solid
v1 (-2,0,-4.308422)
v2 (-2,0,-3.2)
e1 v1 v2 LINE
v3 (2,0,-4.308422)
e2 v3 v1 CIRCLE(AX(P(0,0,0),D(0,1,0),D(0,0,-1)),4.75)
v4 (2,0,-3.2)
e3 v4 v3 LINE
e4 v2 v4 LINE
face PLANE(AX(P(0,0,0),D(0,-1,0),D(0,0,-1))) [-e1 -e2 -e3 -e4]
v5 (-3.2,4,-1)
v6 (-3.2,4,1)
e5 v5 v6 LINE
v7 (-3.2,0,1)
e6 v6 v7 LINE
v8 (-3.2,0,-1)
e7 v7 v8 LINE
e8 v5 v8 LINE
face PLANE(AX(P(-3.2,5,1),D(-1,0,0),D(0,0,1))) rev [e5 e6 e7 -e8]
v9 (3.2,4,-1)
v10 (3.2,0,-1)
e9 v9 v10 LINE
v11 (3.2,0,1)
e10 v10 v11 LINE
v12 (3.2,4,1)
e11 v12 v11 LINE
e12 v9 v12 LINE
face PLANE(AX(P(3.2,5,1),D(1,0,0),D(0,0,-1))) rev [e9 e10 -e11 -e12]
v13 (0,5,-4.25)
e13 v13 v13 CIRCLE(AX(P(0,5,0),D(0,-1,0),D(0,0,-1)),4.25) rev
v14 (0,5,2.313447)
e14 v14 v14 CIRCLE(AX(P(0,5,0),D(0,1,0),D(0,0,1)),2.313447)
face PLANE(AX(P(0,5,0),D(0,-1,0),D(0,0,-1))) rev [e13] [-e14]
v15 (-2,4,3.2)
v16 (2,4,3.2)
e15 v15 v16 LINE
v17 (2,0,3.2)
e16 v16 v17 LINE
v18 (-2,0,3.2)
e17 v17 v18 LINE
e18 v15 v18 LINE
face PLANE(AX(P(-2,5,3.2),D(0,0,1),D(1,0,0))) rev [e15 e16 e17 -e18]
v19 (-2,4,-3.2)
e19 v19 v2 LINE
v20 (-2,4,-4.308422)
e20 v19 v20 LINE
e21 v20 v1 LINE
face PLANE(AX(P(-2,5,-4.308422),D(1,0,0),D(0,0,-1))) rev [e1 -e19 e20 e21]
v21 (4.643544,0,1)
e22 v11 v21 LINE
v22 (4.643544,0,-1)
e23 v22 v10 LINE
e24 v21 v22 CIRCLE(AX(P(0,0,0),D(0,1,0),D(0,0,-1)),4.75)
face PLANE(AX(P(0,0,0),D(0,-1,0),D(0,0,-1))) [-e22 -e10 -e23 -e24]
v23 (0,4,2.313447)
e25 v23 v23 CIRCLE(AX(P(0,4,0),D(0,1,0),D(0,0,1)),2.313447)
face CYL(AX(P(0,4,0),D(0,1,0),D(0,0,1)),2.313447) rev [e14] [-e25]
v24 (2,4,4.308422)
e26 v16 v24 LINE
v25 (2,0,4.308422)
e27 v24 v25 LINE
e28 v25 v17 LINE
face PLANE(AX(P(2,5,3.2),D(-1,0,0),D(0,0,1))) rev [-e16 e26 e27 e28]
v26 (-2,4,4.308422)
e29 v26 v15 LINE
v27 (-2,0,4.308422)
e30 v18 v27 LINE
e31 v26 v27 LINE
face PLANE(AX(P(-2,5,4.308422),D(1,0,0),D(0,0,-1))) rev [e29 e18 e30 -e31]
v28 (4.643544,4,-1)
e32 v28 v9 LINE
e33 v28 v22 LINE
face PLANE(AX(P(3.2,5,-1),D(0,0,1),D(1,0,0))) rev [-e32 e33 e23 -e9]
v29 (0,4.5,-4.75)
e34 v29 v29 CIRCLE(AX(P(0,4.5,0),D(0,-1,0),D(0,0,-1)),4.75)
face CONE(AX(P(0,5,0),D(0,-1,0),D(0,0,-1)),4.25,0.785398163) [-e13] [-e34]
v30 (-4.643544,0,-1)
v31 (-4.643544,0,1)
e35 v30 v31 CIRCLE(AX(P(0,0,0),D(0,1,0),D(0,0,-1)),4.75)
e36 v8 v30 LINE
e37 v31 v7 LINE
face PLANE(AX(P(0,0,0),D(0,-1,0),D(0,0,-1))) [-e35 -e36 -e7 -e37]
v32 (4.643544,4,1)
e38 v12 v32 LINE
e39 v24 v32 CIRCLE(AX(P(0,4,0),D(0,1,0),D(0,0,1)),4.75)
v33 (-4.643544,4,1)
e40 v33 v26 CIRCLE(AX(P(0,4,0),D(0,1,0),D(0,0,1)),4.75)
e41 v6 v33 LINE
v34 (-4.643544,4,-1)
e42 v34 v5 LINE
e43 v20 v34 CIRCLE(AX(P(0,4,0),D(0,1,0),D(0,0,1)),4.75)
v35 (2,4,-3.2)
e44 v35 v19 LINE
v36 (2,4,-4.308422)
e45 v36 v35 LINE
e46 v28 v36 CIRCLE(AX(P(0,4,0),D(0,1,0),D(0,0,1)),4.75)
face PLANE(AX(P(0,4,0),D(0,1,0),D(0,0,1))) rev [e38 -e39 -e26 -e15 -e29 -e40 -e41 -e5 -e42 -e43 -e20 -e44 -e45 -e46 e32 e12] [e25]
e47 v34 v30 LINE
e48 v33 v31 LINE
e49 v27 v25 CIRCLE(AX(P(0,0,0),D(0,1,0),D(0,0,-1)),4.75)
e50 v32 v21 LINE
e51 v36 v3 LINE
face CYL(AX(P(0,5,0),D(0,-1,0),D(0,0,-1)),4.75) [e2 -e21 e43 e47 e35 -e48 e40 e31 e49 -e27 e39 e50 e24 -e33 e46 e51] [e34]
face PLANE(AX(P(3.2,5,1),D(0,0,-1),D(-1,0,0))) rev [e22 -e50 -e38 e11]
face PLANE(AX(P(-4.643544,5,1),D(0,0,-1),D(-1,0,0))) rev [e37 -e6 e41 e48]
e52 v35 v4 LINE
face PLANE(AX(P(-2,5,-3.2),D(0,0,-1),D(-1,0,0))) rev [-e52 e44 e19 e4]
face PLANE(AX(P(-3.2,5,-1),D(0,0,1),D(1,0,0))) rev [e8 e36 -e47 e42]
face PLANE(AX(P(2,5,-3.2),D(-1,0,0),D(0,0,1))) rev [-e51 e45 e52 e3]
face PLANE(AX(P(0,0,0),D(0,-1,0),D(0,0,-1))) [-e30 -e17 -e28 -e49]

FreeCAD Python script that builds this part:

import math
import FreeCAD as App
import Part
import Sketcher
from FreeCAD import Vector
Q = App.Units.Quantity


def edges_at(feature, points):
    """Names of the edges that pass closest to the given points."""
    edges = feature.Shape.Edges
    near = lambda p: min(range(len(edges)), key=lambda i: edges[i].distToShape(Part.Vertex(*p))[0])
    return sorted({f"Edge{near(p) + 1}" for p in points})

doc = App.newDocument("Part")
body = doc.addObject("PartDesign::Body", "Body")

# Sketch on XZ plane
sketch1 = body.newObject("Sketcher::SketchObject", "Sketch")
sketch1.AttachmentSupport = (doc.getObject("XZ_Plane"), [""])
sketch1.MapMode = "FlatFace"
sketch1.addGeometry([
    Part.LineSegment(Vector(3.2, -1, 0), Vector(3.2, 1, 0)),
    Part.LineSegment(Vector(3.2, 1, 0), Vector(4.6, 1, 0)),
    Part.ArcOfCircle(Part.Circle(Vector(0, 0, 0), Vector(0, 0, 1), 4.7), math.radians(-12), math.radians(12)),
    Part.LineSegment(Vector(4.6, -1, 0), Vector(3.2, -1, 0)),
], False)
sketch1.addConstraint([
    Sketcher.Constraint("Coincident", 0, 2, 1, 1),
    Sketcher.Constraint("Coincident", 1, 2, 2, 2),
    Sketcher.Constraint("Coincident", 2, 1, 3, 1),
    Sketcher.Constraint("Coincident", 3, 2, 0, 1),
    Sketcher.Constraint("Vertical", 0),
    Sketcher.Constraint("Horizontal", 1),
    Sketcher.Constraint("Horizontal", 3),
    Sketcher.Constraint("Coincident", 2, 3, -1, 1),
    Sketcher.Constraint("Vertical", 1, 2, 2, 1),
    Sketcher.Constraint("DistanceY", 0, 1, 0, 2, Q("2 mm")),
    Sketcher.Constraint("Radius", 2, Q("4.75 mm")),
    Sketcher.Constraint("DistanceX", -1, 1, 0, 2, Q("3.2 mm")),
])
pad1 = body.newObject("PartDesign::Pad", "Pad")
pad1.Profile = sketch1
pad1.Length = 5
pad1.Reversed = True
body2 = doc.addObject("PartDesign::Body", "Body001")

# Sketch on XZ plane
sketch2 = body2.newObject("Sketcher::SketchObject", "Sketch001")
sketch2.AttachmentSupport = (doc.getObject("XZ_Plane001"), [""])
sketch2.MapMode = "FlatFace"
sketch2.addGeometry([
    Part.LineSegment(Vector(-4.6, 1, 0), Vector(-3.2, 1, 0)),
    Part.LineSegment(Vector(-3.2, 1, 0), Vector(-3.2, -1, 0)),
    Part.LineSegment(Vector(-3.2, -1, 0), Vector(-4.6, -1, 0)),
    Part.ArcOfCircle(Part.Circle(Vector(0, 0, 0), Vector(0, 0, 1), 4.7), math.radians(168), math.radians(192)),
], False)
sketch2.addConstraint([
    Sketcher.Constraint("Coincident", 0, 2, 1, 1),
    Sketcher.Constraint("Coincident", 1, 2, 2, 1),
    Sketcher.Constraint("Coincident", 2, 2, 3, 2),
    Sketcher.Constraint("Coincident", 3, 1, 0, 1),
    Sketcher.Constraint("Horizontal", 0),
    Sketcher.Constraint("Vertical", 1),
    Sketcher.Constraint("Horizontal", 2),
    Sketcher.Constraint("Coincident", 3, 3, -1, 1),
    Sketcher.Constraint("Vertical", 2, 2, 3, 1),
    Sketcher.Constraint("DistanceY", 1, 2, 1, 1, Q("2 mm")),
    Sketcher.Constraint("Radius", 3, Q("4.75 mm")),
    Sketcher.Constraint("DistanceX", 0, 2, -1, 1, Q("3.2 mm")),
])
pad2 = body2.newObject("PartDesign::Pad", "Pad001")
pad2.Profile = sketch2
pad2.Length = 5
pad2.Reversed = True
body3 = doc.addObject("PartDesign::Body", "Body002")

# Sketch on XZ plane
sketch3 = body3.newObject("Sketcher::SketchObject", "Sketch002")
sketch3.AttachmentSupport = (doc.getObject("XZ_Plane002"), [""])
sketch3.MapMode = "FlatFace"
sketch3.addGeometry([
    Part.LineSegment(Vector(-2, 3.2, 0), Vector(-2, 4.3, 0)),
    Part.ArcOfCircle(Part.Circle(Vector(0, 0, 0), Vector(0, 0, 1), 4.8), math.radians(65), math.radians(115)),
    Part.LineSegment(Vector(2, 4.3, 0), Vector(2, 3.2, 0)),
    Part.LineSegment(Vector(2, 3.2, 0), Vector(-2, 3.2, 0)),
], False)
sketch3.addConstraint([
    Sketcher.Constraint("Coincident", 0, 2, 1, 2),
    Sketcher.Constraint("Coincident", 1, 1, 2, 1),
    Sketcher.Constraint("Coincident", 2, 2, 3, 1),
    Sketcher.Constraint("Coincident", 3, 2, 0, 1),
    Sketcher.Constraint("Vertical", 0),
    Sketcher.Constraint("Vertical", 2),
    Sketcher.Constraint("Horizontal", 3),
    Sketcher.Constraint("Coincident", 1, 3, -1, 1),
    Sketcher.Constraint("Horizontal", 0, 2, 1, 1),
    Sketcher.Constraint("DistanceX", 3, 2, 3, 1, Q("4 mm")),
    Sketcher.Constraint("Radius", 1, Q("4.75 mm")),
    Sketcher.Constraint("DistanceY", -1, 1, 2, 2, Q("3.2 mm")),
])
pad3 = body3.newObject("PartDesign::Pad", "Pad002")
pad3.Profile = sketch3
pad3.Length = 5
pad3.Reversed = True
body4 = doc.addObject("PartDesign::Body", "Body003")

# Sketch on XZ plane
sketch4 = body4.newObject("Sketcher::SketchObject", "Sketch003")
sketch4.AttachmentSupport = (doc.getObject("XZ_Plane003"), [""])
sketch4.MapMode = "FlatFace"
sketch4.addGeometry([
    Part.LineSegment(Vector(-2, -4.3, 0), Vector(-2, -3.2, 0)),
    Part.LineSegment(Vector(-2, -3.2, 0), Vector(2, -3.2, 0)),
    Part.LineSegment(Vector(2, -3.2, 0), Vector(2, -4.3, 0)),
    Part.ArcOfCircle(Part.Circle(Vector(0, 0, 0), Vector(0, 0, 1), 4.8), math.radians(-115), math.radians(-65)),
], False)
sketch4.addConstraint([
    Sketcher.Constraint("Coincident", 0, 2, 1, 1),
    Sketcher.Constraint("Coincident", 1, 2, 2, 1),
    Sketcher.Constraint("Coincident", 2, 2, 3, 2),
    Sketcher.Constraint("Coincident", 3, 1, 0, 1),
    Sketcher.Constraint("Vertical", 0),
    Sketcher.Constraint("Horizontal", 1),
    Sketcher.Constraint("Vertical", 2),
    Sketcher.Constraint("Coincident", 3, 3, -1, 1),
    Sketcher.Constraint("Horizontal", 2, 2, 3, 1),
    Sketcher.Constraint("DistanceX", 1, 1, 1, 2, Q("4 mm")),
    Sketcher.Constraint("Radius", 3, Q("4.75 mm")),
    Sketcher.Constraint("DistanceY", 0, 2, -1, 1, Q("3.2 mm")),
])
pad4 = body4.newObject("PartDesign::Pad", "Pad003")
pad4.Profile = sketch4
pad4.Length = 5
pad4.Reversed = True
body.AllowCompound = True
doc.recompute()

boolean = body.newObject("PartDesign::Boolean", "Boolean")
boolean.Type = "Fuse"
boolean.addObjects([body2])
doc.recompute()

boolean2 = body.newObject("PartDesign::Boolean", "Boolean001")
boolean2.Type = "Fuse"
boolean2.addObjects([body3])
doc.recompute()

boolean3 = body.newObject("PartDesign::Boolean", "Boolean002")
boolean3.Type = "Fuse"
boolean3.addObjects([body4])

# Sketch on XZ plane
sketch5 = body.newObject("Sketcher::SketchObject", "Sketch004")
sketch5.AttachmentSupport = (doc.getObject("XZ_Plane"), [""])
sketch5.MapMode = "FlatFace"
sketch5.AttachmentOffset = App.Placement(Vector(0, 0, -4), App.Rotation())
sketch5.addGeometry([
    Part.Circle(Vector(0, 0, 0), Vector(0, 0, 1), 4.8),
    Part.Circle(Vector(0, 0, 0), Vector(0, 0, 1), 2.3),
], False)
sketch5.addConstraint([
    Sketcher.Constraint("Coincident", 0, 3, -1, 1),
    Sketcher.Constraint("Coincident", 1, 3, -1, 1),
    Sketcher.Constraint("Diameter", 0, Q("9.5 mm")),
    Sketcher.Constraint("Diameter", 1, Q("4.626894 mm")),
])
pad5 = body.newObject("PartDesign::Pad", "Pad004")
pad5.Profile = sketch5
pad5.Length = 1
pad5.Reversed = True
doc.recompute()

chamfer = body.newObject("PartDesign::Chamfer", "Chamfer")
chamfer.Base = (pad5, edges_at(pad5, [(0, 5, -4.75)]))
chamfer.Size = 0.5

doc.recompute()
